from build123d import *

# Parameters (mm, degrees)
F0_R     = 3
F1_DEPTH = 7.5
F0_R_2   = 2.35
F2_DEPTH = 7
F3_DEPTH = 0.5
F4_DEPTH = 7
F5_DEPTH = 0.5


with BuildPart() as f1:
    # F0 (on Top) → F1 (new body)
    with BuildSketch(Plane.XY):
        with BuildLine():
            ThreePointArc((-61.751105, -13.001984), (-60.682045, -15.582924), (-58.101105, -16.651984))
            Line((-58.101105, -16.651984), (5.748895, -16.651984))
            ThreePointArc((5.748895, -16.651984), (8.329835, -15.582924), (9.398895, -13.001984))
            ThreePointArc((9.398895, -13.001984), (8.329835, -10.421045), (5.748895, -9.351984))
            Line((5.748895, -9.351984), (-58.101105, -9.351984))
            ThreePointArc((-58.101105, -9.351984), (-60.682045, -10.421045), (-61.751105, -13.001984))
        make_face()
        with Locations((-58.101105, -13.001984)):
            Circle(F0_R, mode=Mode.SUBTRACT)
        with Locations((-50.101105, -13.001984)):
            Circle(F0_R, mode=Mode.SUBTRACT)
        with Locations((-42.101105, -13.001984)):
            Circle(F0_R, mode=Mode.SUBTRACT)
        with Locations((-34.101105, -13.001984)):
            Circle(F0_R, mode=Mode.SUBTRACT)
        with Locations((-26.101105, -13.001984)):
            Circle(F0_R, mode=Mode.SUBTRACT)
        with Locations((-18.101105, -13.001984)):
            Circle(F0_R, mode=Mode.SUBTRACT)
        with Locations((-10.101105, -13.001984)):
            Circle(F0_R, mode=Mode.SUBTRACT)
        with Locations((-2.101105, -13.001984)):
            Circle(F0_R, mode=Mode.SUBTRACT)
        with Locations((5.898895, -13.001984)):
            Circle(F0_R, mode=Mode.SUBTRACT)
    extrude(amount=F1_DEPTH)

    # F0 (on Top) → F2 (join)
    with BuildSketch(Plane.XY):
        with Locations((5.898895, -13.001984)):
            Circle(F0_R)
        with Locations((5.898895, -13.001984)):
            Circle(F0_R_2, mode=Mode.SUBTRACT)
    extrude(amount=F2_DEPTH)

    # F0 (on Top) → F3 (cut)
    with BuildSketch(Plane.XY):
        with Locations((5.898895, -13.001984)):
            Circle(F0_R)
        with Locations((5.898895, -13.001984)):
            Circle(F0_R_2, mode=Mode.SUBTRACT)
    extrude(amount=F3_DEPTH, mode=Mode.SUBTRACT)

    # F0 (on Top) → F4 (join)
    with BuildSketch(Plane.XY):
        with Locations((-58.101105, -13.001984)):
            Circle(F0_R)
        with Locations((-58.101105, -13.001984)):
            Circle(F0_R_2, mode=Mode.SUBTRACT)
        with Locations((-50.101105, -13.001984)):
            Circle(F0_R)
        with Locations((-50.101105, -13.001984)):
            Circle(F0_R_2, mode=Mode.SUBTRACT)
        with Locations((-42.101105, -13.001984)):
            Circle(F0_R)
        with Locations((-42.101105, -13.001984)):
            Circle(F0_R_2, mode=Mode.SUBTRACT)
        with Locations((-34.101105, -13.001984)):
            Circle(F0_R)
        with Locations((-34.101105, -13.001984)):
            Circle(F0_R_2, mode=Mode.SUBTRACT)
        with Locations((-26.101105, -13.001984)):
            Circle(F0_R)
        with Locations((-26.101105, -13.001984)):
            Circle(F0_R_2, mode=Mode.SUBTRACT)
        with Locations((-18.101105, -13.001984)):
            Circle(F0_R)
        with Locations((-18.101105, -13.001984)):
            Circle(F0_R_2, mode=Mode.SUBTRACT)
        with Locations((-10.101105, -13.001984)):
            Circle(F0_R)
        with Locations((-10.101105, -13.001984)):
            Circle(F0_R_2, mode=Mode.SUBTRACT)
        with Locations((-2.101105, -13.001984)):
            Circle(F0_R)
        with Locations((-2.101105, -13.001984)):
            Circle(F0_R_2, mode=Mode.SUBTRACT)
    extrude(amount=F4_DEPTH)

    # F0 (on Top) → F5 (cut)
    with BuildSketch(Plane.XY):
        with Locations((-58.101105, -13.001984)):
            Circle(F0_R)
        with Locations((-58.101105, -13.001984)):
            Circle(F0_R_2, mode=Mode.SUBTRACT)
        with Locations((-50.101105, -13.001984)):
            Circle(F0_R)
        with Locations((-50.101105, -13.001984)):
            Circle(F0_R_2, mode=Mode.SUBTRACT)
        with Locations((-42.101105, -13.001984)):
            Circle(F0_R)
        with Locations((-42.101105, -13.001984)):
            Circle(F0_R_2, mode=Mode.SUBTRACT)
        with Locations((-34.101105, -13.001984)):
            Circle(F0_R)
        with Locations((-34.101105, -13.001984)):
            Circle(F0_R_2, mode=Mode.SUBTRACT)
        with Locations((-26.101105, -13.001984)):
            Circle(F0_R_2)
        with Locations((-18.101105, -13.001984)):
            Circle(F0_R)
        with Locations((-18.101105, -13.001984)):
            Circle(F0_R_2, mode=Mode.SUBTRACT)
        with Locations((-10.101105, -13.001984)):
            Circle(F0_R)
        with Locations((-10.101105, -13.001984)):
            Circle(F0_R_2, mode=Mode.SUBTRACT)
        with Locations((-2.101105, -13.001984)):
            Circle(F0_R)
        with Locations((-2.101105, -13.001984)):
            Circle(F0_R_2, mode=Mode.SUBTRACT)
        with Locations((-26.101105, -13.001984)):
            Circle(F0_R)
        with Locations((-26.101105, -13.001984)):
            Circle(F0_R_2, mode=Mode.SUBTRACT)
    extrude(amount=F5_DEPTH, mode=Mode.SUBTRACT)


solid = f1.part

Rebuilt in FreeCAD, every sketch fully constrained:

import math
import FreeCAD as App
import Part
import Sketcher
from FreeCAD import Vector

doc = App.newDocument("Part")
body = doc.addObject("PartDesign::Body", "Body")

# Sketch on XY plane
sketch1 = body.newObject("Sketcher::SketchObject", "Sketch")
sketch1.AttachmentSupport = (doc.getObject("XY_Plane"), [""])
sketch1.MapMode = "FlatFace"
sketch1.addGeometry([
    Part.ArcOfCircle(Part.Circle(Vector(-58.1, -13, 0), Vector(0, 0, 1), 3.6), math.radians(180), math.radians(270)),  # 0
    Part.LineSegment(Vector(-58.1, -16.7, 0), Vector(5.7, -16.7, 0)),  # 1
    Part.ArcOfCircle(Part.Circle(Vector(5.7, -13, 0), Vector(0, 0, 1), 3.6), math.radians(-90), math.radians(0)),  # 2
    Part.ArcOfCircle(Part.Circle(Vector(5.7, -13, 0), Vector(0, 0, 1), 3.7), math.radians(0), math.radians(90)),  # 3
    Part.LineSegment(Vector(5.7, -9.4, 0), Vector(-58.1, -9.4, 0)),  # 4
    Part.ArcOfCircle(Part.Circle(Vector(-58.1, -13, 0), Vector(0, 0, 1), 3.7), math.radians(90), math.radians(180)),  # 5
    Part.Circle(Vector(-58.1, -13, 0), Vector(0, 0, 1), 3),  # 6
    Part.Circle(Vector(-50.1, -13, 0), Vector(0, 0, 1), 3),  # 7
    Part.Circle(Vector(-42.1, -13, 0), Vector(0, 0, 1), 3),  # 8
    Part.Circle(Vector(-34.1, -13, 0), Vector(0, 0, 1), 3),  # 9
    Part.Circle(Vector(-26.1, -13, 0), Vector(0, 0, 1), 3),  # 10
    Part.Circle(Vector(-18.1, -13, 0), Vector(0, 0, 1), 3),  # 11
    Part.Circle(Vector(-10.1, -13, 0), Vector(0, 0, 1), 3),  # 12
    Part.Circle(Vector(-2.1, -13, 0), Vector(0, 0, 1), 3),  # 13
    Part.Circle(Vector(5.9, -13, 0), Vector(0, 0, 1), 3),  # 14
], False)
sketch1.addConstraint([
    Sketcher.Constraint("Tangent", 0, 2, 1, 1),
    Sketcher.Constraint("Tangent", 1, 2, 2, 1),
    Sketcher.Constraint("Tangent", 2, 2, 3, 1),
    Sketcher.Constraint("Tangent", 3, 2, 4, 1),
    Sketcher.Constraint("Tangent", 4, 2, 5, 1),
    Sketcher.Constraint("Tangent", 5, 2, 0, 1),
    Sketcher.Constraint("Horizontal", 1),
    Sketcher.Constraint("Horizontal", 4),
    Sketcher.Constraint("Coincident", 6, 3, 0, 3),
    Sketcher.Constraint("Equal", 0, 2),
    Sketcher.Constraint("Equal", 2, 3),
    Sketcher.Constraint("Equal", 6, 7),
    Sketcher.Constraint("Equal", 7, 8),
    Sketcher.Constraint("Equal", 8, 9),
    Sketcher.Constraint("Equal", 9, 10),
    Sketcher.Constraint("Equal", 10, 11),
    Sketcher.Constraint("Equal", 11, 12),
    Sketcher.Constraint("Equal", 12, 13),
    Sketcher.Constraint("Equal", 13, 14),
    Sketcher.Constraint("Horizontal", 6, 3, 7, 3),
    Sketcher.Constraint("Horizontal", 7, 3, 8, 3),
    Sketcher.Constraint("Horizontal", 8, 3, 9, 3),
    Sketcher.Constraint("Horizontal", 9, 3, 10, 3),
    Sketcher.Constraint("Horizontal", 10, 3, 11, 3),
    Sketcher.Constraint("Horizontal", 11, 3, 12, 3),
    Sketcher.Constraint("Horizontal", 12, 3, 13, 3),
    Sketcher.Constraint("Horizontal", 13, 3, 14, 3),
    Sketcher.Constraint("Horizontal", 14, 3, 2, 2),
    Sketcher.Constraint("Horizontal", 2, 2, 5, 2),
    Sketcher.Constraint("Diameter", 6, 6.0),
    Sketcher.Constraint("Radius", 0, 3.649999),
    Sketcher.Constraint("DistanceX", 5, 3, 7, 3, 7.999999),
    Sketcher.Constraint("DistanceX", 7, 3, 8, 3, 8.0),
    Sketcher.Constraint("DistanceX", 8, 3, 9, 3, 8.0),
    Sketcher.Constraint("DistanceX", 9, 3, 10, 3, 8.0),
    Sketcher.Constraint("DistanceX", 10, 3, 11, 3, 8.0),
    Sketcher.Constraint("DistanceX", 11, 3, 12, 3, 8.0),
    Sketcher.Constraint("DistanceX", 12, 3, 13, 3, 8.0),
    Sketcher.Constraint("DistanceX", 13, 3, 14, 3, 8.0),
    Sketcher.Constraint("DistanceX", 1, 1, 1, 2, 63.85),
    Sketcher.Constraint("DistanceX", 0, 3, -1, 1, 58.101106),
    Sketcher.Constraint("DistanceY", 0, 3, -1, 1, 13.001985),
])
pad1 = body.newObject("PartDesign::Pad", "Pad")
pad1.Profile = sketch1
pad1.Length = 7.5

# Sketch on XY plane
sketch2 = body.newObject("Sketcher::SketchObject", "Sketch001")
sketch2.AttachmentSupport = (doc.getObject("XY_Plane"), [""])
sketch2.MapMode = "FlatFace"
sketch2.addGeometry([
    Part.Circle(Vector(5.9, -13, 0), Vector(0, 0, 1), 3),
    Part.Circle(Vector(5.9, -13, 0), Vector(0, 0, 1), 2.4),
], False)
sketch2.addConstraint([
    Sketcher.Constraint("Coincident", 1, 3, 0, 3),
    Sketcher.Constraint("Diameter", 0, 6.0),
    Sketcher.Constraint("Diameter", 1, 4.7),
    Sketcher.Constraint("DistanceX", -1, 1, 0, 3, 5.898895),
    Sketcher.Constraint("DistanceY", 0, 3, -1, 1, 13.001984),
])
pad2 = body.newObject("PartDesign::Pad", "Pad001")
pad2.Profile = sketch2
pad2.Length = 7

# Sketch on XY plane
sketch3 = body.newObject("Sketcher::SketchObject", "Sketch002")
sketch3.AttachmentSupport = (doc.getObject("XY_Plane"), [""])
sketch3.MapMode = "FlatFace"
sketch3.addGeometry([
    Part.Circle(Vector(5.9, -13, 0), Vector(0, 0, 1), 3),
    Part.Circle(Vector(5.9, -13, 0), Vector(0, 0, 1), 2.4),
], False)
sketch3.addConstraint([
    Sketcher.Constraint("Coincident", 1, 3, 0, 3),
    Sketcher.Constraint("Diameter", 0, 6.0),
    Sketcher.Constraint("Diameter", 1, 4.7),
    Sketcher.Constraint("DistanceX", -1, 1, 0, 3, 5.898895),
    Sketcher.Constraint("DistanceY", 0, 3, -1, 1, 13.001984),
])
pocket1 = body.newObject("PartDesign::Pocket", "Pocket")
pocket1.Profile = sketch3
pocket1.Length = 0.5
pocket1.Reversed = True

# Sketch on XY plane
sketch4 = body.newObject("Sketcher::SketchObject", "Sketch003")
sketch4.AttachmentSupport = (doc.getObject("XY_Plane"), [""])
sketch4.MapMode = "FlatFace"
sketch4.addGeometry([
    Part.Circle(Vector(-58.1, -13, 0), Vector(0, 0, 1), 3),  # 0
    Part.Circle(Vector(-58.1, -13, 0), Vector(0, 0, 1), 2.4),  # 1
    Part.Circle(Vector(-50.1, -13, 0), Vector(0, 0, 1), 3),  # 2
    Part.Circle(Vector(-50.1, -13, 0), Vector(0, 0, 1), 2.4),  # 3
    Part.Circle(Vector(-42.1, -13, 0), Vector(0, 0, 1), 3),  # 4
    Part.Circle(Vector(-42.1, -13, 0), Vector(0, 0, 1), 2.4),  # 5
    Part.Circle(Vector(-34.1, -13, 0), Vector(0, 0, 1), 3),  # 6
    Part.Circle(Vector(-34.1, -13, 0), Vector(0, 0, 1), 2.4),  # 7
    Part.Circle(Vector(-26.1, -13, 0), Vector(0, 0, 1), 3),  # 8
    Part.Circle(Vector(-26.1, -13, 0), Vector(0, 0, 1), 2.4),  # 9
    Part.Circle(Vector(-18.1, -13, 0), Vector(0, 0, 1), 3),  # 10
    Part.Circle(Vector(-18.1, -13, 0), Vector(0, 0, 1), 2.4),  # 11
    Part.Circle(Vector(-10.1, -13, 0), Vector(0, 0, 1), 3),  # 12
    Part.Circle(Vector(-10.1, -13, 0), Vector(0, 0, 1), 2.4),  # 13
    Part.Circle(Vector(-2.1, -13, 0), Vector(0, 0, 1), 3),  # 14
    Part.Circle(Vector(-2.1, -13, 0), Vector(0, 0, 1), 2.4),  # 15
], False)
sketch4.addConstraint([
    Sketcher.Constraint("Coincident", 1, 3, 0, 3),
    Sketcher.Constraint("Coincident", 3, 3, 2, 3),
    Sketcher.Constraint("Coincident", 5, 3, 4, 3),
    Sketcher.Constraint("Coincident", 7, 3, 6, 3),
    Sketcher.Constraint("Coincident", 9, 3, 8, 3),
    Sketcher.Constraint("Coincident", 11, 3, 10, 3),
    Sketcher.Constraint("Coincident", 13, 3, 12, 3),
    Sketcher.Constraint("Coincident", 15, 3, 14, 3),
    Sketcher.Constraint("Equal", 0, 2),
    Sketcher.Constraint("Equal", 1, 3),
    Sketcher.Constraint("Equal", 2, 4),
    Sketcher.Constraint("Equal", 3, 5),
    Sketcher.Constraint("Equal", 4, 6),
    Sketcher.Constraint("Equal", 5, 7),
    Sketcher.Constraint("Equal", 6, 8),
    Sketcher.Constraint("Equal", 7, 9),
    Sketcher.Constraint("Equal", 8, 10),
    Sketcher.Constraint("Equal", 9, 11),
    Sketcher.Constraint("Equal", 10, 12),
    Sketcher.Constraint("Equal", 11, 13),
    Sketcher.Constraint("Equal", 12, 14),
    Sketcher.Constraint("Equal", 13, 15),
    Sketcher.Constraint("Horizontal", 1, 3, 2, 3),
    Sketcher.Constraint("Horizontal", 3, 3, 4, 3),
    Sketcher.Constraint("Horizontal", 5, 3, 6, 3),
    Sketcher.Constraint("Horizontal", 7, 3, 8, 3),
    Sketcher.Constraint("Horizontal", 9, 3, 10, 3),
    Sketcher.Constraint("Horizontal", 11, 3, 12, 3),
    Sketcher.Constraint("Horizontal", 13, 3, 14, 3),
    Sketcher.Constraint("Diameter", 0, 6.0),
    Sketcher.Constraint("Diameter", 1, 4.7),
    Sketcher.Constraint("DistanceX", 0, 3, 2, 3, 8.0),
    Sketcher.Constraint("DistanceX", 2, 3, 4, 3, 8.0),
    Sketcher.Constraint("DistanceX", 4, 3, 6, 3, 8.0),
    Sketcher.Constraint("DistanceX", 6, 3, 8, 3, 8.0),
    Sketcher.Constraint("DistanceX", 8, 3, 10, 3, 8.0),
    Sketcher.Constraint("DistanceX", 10, 3, 12, 3, 8.0),
    Sketcher.Constraint("DistanceX", 12, 3, 14, 3, 8.0),
    Sketcher.Constraint("DistanceX", 0, 3, -1, 1, 58.101105),
    Sketcher.Constraint("DistanceY", 0, 3, -1, 1, 13.001984),
])
pad3 = body.newObject("PartDesign::Pad", "Pad002")
pad3.Profile = sketch4
pad3.Length = 7

# Sketch on XY plane
sketch5 = body.newObject("Sketcher::SketchObject", "Sketch004")
sketch5.AttachmentSupport = (doc.getObject("XY_Plane"), [""])
sketch5.MapMode = "FlatFace"
sketch5.addGeometry([
    Part.Circle(Vector(-58.1, -13, 0), Vector(0, 0, 1), 3),  # 0
    Part.Circle(Vector(-58.1, -13, 0), Vector(0, 0, 1), 2.4),  # 1
    Part.Circle(Vector(-50.1, -13, 0), Vector(0, 0, 1), 3),  # 2
    Part.Circle(Vector(-50.1, -13, 0), Vector(0, 0, 1), 2.4),  # 3
    Part.Circle(Vector(-42.1, -13, 0), Vector(0, 0, 1), 3),  # 4
    Part.Circle(Vector(-42.1, -13, 0), Vector(0, 0, 1), 2.4),  # 5
    Part.Circle(Vector(-34.1, -13, 0), Vector(0, 0, 1), 3),  # 6
    Part.Circle(Vector(-34.1, -13, 0), Vector(0, 0, 1), 2.4),  # 7
    Part.Circle(Vector(-26.1, -13, 0), Vector(0, 0, 1), 3),  # 8
    Part.Circle(Vector(-26.1, -13, 0), Vector(0, 0, 1), 2.4),  # 9
    Part.Circle(Vector(-18.1, -13, 0), Vector(0, 0, 1), 3),  # 10
    Part.Circle(Vector(-18.1, -13, 0), Vector(0, 0, 1), 2.4),  # 11
    Part.Circle(Vector(-10.1, -13, 0), Vector(0, 0, 1), 3),  # 12
    Part.Circle(Vector(-10.1, -13, 0), Vector(0, 0, 1), 2.4),  # 13
    Part.Circle(Vector(-2.1, -13, 0), Vector(0, 0, 1), 3),  # 14
    Part.Circle(Vector(-2.1, -13, 0), Vector(0, 0, 1), 2.4),  # 15
], False)
sketch5.addConstraint([
    Sketcher.Constraint("Coincident", 1, 3, 0, 3),
    Sketcher.Constraint("Coincident", 3, 3, 2, 3),
    Sketcher.Constraint("Coincident", 5, 3, 4, 3),
    Sketcher.Constraint("Coincident", 7, 3, 6, 3),
    Sketcher.Constraint("Coincident", 9, 3, 8, 3),
    Sketcher.Constraint("Coincident", 11, 3, 10, 3),
    Sketcher.Constraint("Coincident", 13, 3, 12, 3),
    Sketcher.Constraint("Coincident", 15, 3, 14, 3),
    Sketcher.Constraint("Equal", 0, 2),
    Sketcher.Constraint("Equal", 1, 3),
    Sketcher.Constraint("Equal", 2, 4),
    Sketcher.Constraint("Equal", 3, 5),
    Sketcher.Constraint("Equal", 4, 6),
    Sketcher.Constraint("Equal", 5, 7),
    Sketcher.Constraint("Equal", 6, 8),
    Sketcher.Constraint("Equal", 7, 9),
    Sketcher.Constraint("Equal", 8, 10),
    Sketcher.Constraint("Equal", 9, 11),
    Sketcher.Constraint("Equal", 10, 12),
    Sketcher.Constraint("Equal", 11, 13),
    Sketcher.Constraint("Equal", 12, 14),
    Sketcher.Constraint("Equal", 13, 15),
    Sketcher.Constraint("Horizontal", 1, 3, 2, 3),
    Sketcher.Constraint("Horizontal", 3, 3, 4, 3),
    Sketcher.Constraint("Horizontal", 5, 3, 6, 3),
    Sketcher.Constraint("Horizontal", 7, 3, 8, 3),
    Sketcher.Constraint("Horizontal", 9, 3, 10, 3),
    Sketcher.Constraint("Horizontal", 11, 3, 12, 3),
    Sketcher.Constraint("Horizontal", 13, 3, 14, 3),
    Sketcher.Constraint("Diameter", 0, 6.0),
    Sketcher.Constraint("Diameter", 1, 4.7),
    Sketcher.Constraint("DistanceX", 0, 3, 2, 3, 8.0),
    Sketcher.Constraint("DistanceX", 2, 3, 4, 3, 8.0),
    Sketcher.Constraint("DistanceX", 4, 3, 6, 3, 8.0),
    Sketcher.Constraint("DistanceX", 6, 3, 8, 3, 8.0),
    Sketcher.Constraint("DistanceX", 8, 3, 10, 3, 8.0),
    Sketcher.Constraint("DistanceX", 10, 3, 12, 3, 8.0),
    Sketcher.Constraint("DistanceX", 12, 3, 14, 3, 8.0),
    Sketcher.Constraint("DistanceX", 0, 3, -1, 1, 58.101105),
    Sketcher.Constraint("DistanceY", 0, 3, -1, 1, 13.001984),
])
pocket2 = body.newObject("PartDesign::Pocket", "Pocket001")
pocket2.Profile = sketch5
pocket2.Length = 0.5
pocket2.Reversed = True

doc.recompute()
